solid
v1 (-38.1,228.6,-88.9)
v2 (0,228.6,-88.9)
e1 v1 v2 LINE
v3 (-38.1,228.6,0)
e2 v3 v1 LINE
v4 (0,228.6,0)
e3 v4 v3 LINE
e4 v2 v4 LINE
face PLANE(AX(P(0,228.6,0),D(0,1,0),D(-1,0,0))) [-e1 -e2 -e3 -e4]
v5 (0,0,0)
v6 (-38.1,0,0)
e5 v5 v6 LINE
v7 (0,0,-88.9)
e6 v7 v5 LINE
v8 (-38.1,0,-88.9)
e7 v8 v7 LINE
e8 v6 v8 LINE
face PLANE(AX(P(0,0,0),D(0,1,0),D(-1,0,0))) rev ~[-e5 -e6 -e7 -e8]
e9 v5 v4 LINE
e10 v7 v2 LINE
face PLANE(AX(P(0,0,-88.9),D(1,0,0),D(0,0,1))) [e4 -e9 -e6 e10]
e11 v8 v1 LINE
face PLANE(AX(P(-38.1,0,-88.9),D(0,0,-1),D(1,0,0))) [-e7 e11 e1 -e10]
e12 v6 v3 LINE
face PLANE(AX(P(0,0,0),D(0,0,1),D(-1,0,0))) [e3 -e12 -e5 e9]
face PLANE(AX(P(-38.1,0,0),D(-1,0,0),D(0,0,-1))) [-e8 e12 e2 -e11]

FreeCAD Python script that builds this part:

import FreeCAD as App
import Part
import Sketcher
Q = App.Units.Quantity


def add_polygon(sketch, points):
    """Adds a closed chain of lines whose ends are joined by coincident constraints."""
    first, n = sketch.GeometryCount, len(points)
    for a, b in zip(points, points[1:] + points[:1]):
        sketch.addGeometry(Part.LineSegment(App.Vector(*a, 0), App.Vector(*b, 0)), False)
    for i in range(n):
        sketch.addConstraint(Sketcher.Constraint("Coincident", first + i, 2, first + (i + 1) % n, 1))

doc = App.newDocument("Part")
body = doc.addObject("PartDesign::Body", "Body")

# Sketch on XZ plane
sketch1 = body.newObject("Sketcher::SketchObject", "Sketch")
sketch1.AttachmentSupport = (doc.getObject("XZ_Plane"), [""])
sketch1.MapMode = "FlatFace"
add_polygon(sketch1, [(-38, 0), (0, 0), (0, -89), (-38, -89)])  # lines 0-3
sketch1.addConstraint([
    Sketcher.Constraint("Horizontal", 0),
    Sketcher.Constraint("Vertical", 1),
    Sketcher.Constraint("Horizontal", 2),
    Sketcher.Constraint("Vertical", 3),
    Sketcher.Constraint("Coincident", 0, 2, -1, 1),
    Sketcher.Constraint("DistanceX", 0, 1, 0, 2, Q("1.5 in")),
    Sketcher.Constraint("DistanceY", 1, 2, 1, 1, Q("3.5 in")),
])
pad1 = body.newObject("PartDesign::Pad", "Pad")
pad1.Profile = sketch1
pad1.Length = Q("9 in")
pad1.Reversed = True

doc.recompute()
